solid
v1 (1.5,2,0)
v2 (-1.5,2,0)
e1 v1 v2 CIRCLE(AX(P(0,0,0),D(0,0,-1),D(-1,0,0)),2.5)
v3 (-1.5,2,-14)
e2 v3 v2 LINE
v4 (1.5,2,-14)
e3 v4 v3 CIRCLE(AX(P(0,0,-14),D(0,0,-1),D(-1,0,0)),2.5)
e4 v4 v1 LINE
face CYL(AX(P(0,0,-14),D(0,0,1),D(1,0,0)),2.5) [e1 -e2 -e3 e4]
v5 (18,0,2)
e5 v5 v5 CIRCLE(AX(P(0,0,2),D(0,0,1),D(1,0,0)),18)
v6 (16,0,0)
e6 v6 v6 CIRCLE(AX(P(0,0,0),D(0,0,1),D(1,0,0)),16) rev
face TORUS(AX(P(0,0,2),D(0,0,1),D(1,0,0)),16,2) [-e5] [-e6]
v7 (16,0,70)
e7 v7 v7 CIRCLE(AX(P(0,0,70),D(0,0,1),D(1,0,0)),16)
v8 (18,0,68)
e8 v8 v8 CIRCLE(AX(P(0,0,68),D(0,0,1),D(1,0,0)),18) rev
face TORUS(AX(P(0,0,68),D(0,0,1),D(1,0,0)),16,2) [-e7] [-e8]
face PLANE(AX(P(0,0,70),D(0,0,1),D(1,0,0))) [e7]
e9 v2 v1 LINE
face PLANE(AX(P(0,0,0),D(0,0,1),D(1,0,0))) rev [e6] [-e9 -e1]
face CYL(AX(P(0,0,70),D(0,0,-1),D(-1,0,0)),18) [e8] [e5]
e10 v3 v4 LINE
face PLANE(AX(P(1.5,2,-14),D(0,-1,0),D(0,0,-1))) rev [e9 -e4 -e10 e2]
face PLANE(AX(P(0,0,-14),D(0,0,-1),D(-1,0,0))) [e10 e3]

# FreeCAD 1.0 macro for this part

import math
import FreeCAD as App
import Part
import Sketcher

V = App.Vector
Q = App.Units.Quantity


def edges_at(feature, points):
    """Names of the edges that pass closest to the given points."""
    edges = feature.Shape.Edges
    near = lambda p: min(range(len(edges)), key=lambda i: edges[i].distToShape(Part.Vertex(*p))[0])
    return sorted({f"Edge{near(p) + 1}" for p in points})

doc = App.newDocument("Part")
body = doc.addObject("PartDesign::Body", "Body")

# Sketch on XY plane
sketch1 = doc.addObject("Sketcher::SketchObject", "Sketch")
body.addObject(sketch1)
sketch1.AttachmentSupport = (doc.XY_Plane, [""])
sketch1.MapMode = "FlatFace"
sketch1.addGeometry(Part.Circle(V(0, 0, 0), V(0, 0, 1), 18), False)
sketch1.addConstraint([
    Sketcher.Constraint("Coincident", 0, 3, -1, 1),
    Sketcher.Constraint("Diameter", 0, Q("36 mm")),
])
pad1 = doc.addObject("PartDesign::Pad", "Pad")
body.addObject(pad1)
pad1.Profile = sketch1
pad1.Length = 70

# Sketch on XY plane
sketch2 = doc.addObject("Sketcher::SketchObject", "Sketch001")
body.addObject(sketch2)
sketch2.AttachmentSupport = (doc.XY_Plane, [""])
sketch2.MapMode = "FlatFace"
sketch2.addGeometry([
    Part.LineSegment(V(-1.5, 2, 0), V(1.5, 2, 0)),
    Part.ArcOfCircle(Part.Circle(V(0, 0, 0), V(0, 0, 1), 2.5), math.radians(126.869898), math.radians(413.130102)),
], False)
sketch2.addConstraint([
    Sketcher.Constraint("Coincident", 0, 1, 1, 1),
    Sketcher.Constraint("Coincident", 1, 2, 0, 2),
    Sketcher.Constraint("Horizontal", 0),
    Sketcher.Constraint("Coincident", 1, 3, -1, 1),
    Sketcher.Constraint("Radius", 1, Q("2.5 mm")),
    Sketcher.Constraint("DistanceX", 0, 1, 0, 2, Q("3 mm")),
])
pad2 = doc.addObject("PartDesign::Pad", "Pad001")
body.addObject(pad2)
pad2.Profile = sketch2
pad2.Length = 14
pad2.Reversed = True
doc.recompute()

fillet = doc.addObject("PartDesign::Fillet", "Fillet")
body.addObject(fillet)
fillet.Base = (pad2, edges_at(pad2, [(-18, 0, 0), (-18, 0, 70)]))
fillet.Radius = 2

doc.recompute()
